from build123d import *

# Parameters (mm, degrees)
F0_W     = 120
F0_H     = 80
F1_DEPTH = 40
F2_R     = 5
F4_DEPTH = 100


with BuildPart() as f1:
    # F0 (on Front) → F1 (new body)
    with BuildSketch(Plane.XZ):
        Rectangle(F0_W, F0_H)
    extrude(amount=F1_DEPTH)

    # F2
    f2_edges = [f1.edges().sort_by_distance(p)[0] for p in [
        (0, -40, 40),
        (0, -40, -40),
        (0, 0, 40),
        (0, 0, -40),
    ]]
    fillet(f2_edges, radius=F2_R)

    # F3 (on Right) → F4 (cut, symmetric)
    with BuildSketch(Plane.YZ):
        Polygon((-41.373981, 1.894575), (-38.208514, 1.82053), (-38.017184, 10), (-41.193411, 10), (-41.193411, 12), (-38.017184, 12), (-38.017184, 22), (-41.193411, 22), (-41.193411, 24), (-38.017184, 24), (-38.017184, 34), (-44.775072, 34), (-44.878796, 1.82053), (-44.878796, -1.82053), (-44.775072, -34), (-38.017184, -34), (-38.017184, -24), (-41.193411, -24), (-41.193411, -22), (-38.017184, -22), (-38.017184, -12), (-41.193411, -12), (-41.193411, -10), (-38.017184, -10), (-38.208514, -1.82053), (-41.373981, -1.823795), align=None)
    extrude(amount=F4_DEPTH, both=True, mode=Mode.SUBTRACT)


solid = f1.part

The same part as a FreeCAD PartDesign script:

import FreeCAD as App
import Part
import Sketcher
from FreeCAD import Vector
Q = App.Units.Quantity


def edges_at(feature, points):
    """Names of the edges that pass closest to the given points."""
    edges = feature.Shape.Edges
    near = lambda p: min(range(len(edges)), key=lambda i: edges[i].distToShape(Part.Vertex(*p))[0])
    return sorted({f"Edge{near(p) + 1}" for p in points})

doc = App.newDocument("Part")
params = doc.addObject("Spreadsheet::Sheet", "Params")
for row, (alias, value) in enumerate([
    ("sketch1_width", "120 mm"),
    ("sketch1_height", "80 mm"),
    ("pad1_length", "40 mm"),
    ("fillet_radius", "5 mm"),
    ("sketch2_height", "2 mm"),
    ("sketch2_height2", "10 mm"),
    ("pocket1_length", "200 mm"),
], start=1):
    params.set(f"A{row}", alias)
    params.set(f"B{row}", "=" + value)
    params.setAlias(f"B{row}", alias)

body = doc.addObject("PartDesign::Body", "Body")

# Sketch on XZ plane
sketch1 = body.newObject("Sketcher::SketchObject", "Sketch")
sketch1.AttachmentSupport = (doc.getObject("XZ_Plane"), [""])
sketch1.MapMode = "FlatFace"
sketch1.addGeometry(Part.LineSegment(Vector(-60, 40, 0), Vector(-60, -40, 0)), False)
sketch1.addGeometry(Part.LineSegment(Vector(-60, -40, 0), Vector(60, -40, 0)), False)
sketch1.addGeometry(Part.LineSegment(Vector(60, -40, 0), Vector(60, 40, 0)), False)
sketch1.addGeometry(Part.LineSegment(Vector(60, 40, 0), Vector(-60, 40, 0)), False)
sketch1.addConstraint(Sketcher.Constraint("Coincident", 0, 2, 1, 1))
sketch1.addConstraint(Sketcher.Constraint("Coincident", 1, 2, 2, 1))
sketch1.addConstraint(Sketcher.Constraint("Coincident", 2, 2, 3, 1))
sketch1.addConstraint(Sketcher.Constraint("Coincident", 3, 2, 0, 1))
sketch1.addConstraint(Sketcher.Constraint("Vertical", 0))
sketch1.addConstraint(Sketcher.Constraint("Horizontal", 1))
sketch1.addConstraint(Sketcher.Constraint("Vertical", 2))
sketch1.addConstraint(Sketcher.Constraint("Horizontal", 3))
sketch1.addConstraint(Sketcher.Constraint("Symmetric", 0, 2, 2, 2, -1, 1))
sketch1.addConstraint(Sketcher.Constraint("DistanceX", 1, 1, 1, 2, Q("120 mm")))
sketch1.addConstraint(Sketcher.Constraint("DistanceY", 0, 2, 0, 1, Q("80 mm")))
sketch1.setExpression("Constraints[9]", "Params.sketch1_width")
sketch1.setExpression("Constraints[10]", "Params.sketch1_height")
pad1 = body.newObject("PartDesign::Pad", "Pad")
pad1.Profile = sketch1
pad1.setExpression("Length", "Params.pad1_length")
doc.recompute()

fillet = body.newObject("PartDesign::Fillet", "Fillet")
fillet.Base = (pad1, edges_at(pad1, [
    (0, -40, 40),
    (0, -40, -40),
    (0, 0, 40),
    (0, 0, -40),
]))
fillet.setExpression("Radius", "Params.fillet_radius")

# Sketch on YZ plane
sketch2 = body.newObject("Sketcher::SketchObject", "Sketch001")
sketch2.AttachmentSupport = (doc.getObject("YZ_Plane"), [""])
sketch2.MapMode = "FlatFace"
sketch2.addGeometry(Part.LineSegment(Vector(-41.4, 1.9, 0), Vector(-38.2, 1.8, 0)), False)
sketch2.addGeometry(Part.LineSegment(Vector(-38.2, 1.8, 0), Vector(-38, 10, 0)), False)
sketch2.addGeometry(Part.LineSegment(Vector(-38, 10, 0), Vector(-41.2, 10, 0)), False)
sketch2.addGeometry(Part.LineSegment(Vector(-41.2, 10, 0), Vector(-41.2, 12, 0)), False)
sketch2.addGeometry(Part.LineSegment(Vector(-41.2, 12, 0), Vector(-38, 12, 0)), False)
sketch2.addGeometry(Part.LineSegment(Vector(-38, 12, 0), Vector(-38, 22, 0)), False)
sketch2.addGeometry(Part.LineSegment(Vector(-38, 22, 0), Vector(-41.2, 22, 0)), False)
sketch2.addGeometry(Part.LineSegment(Vector(-41.2, 22, 0), Vector(-41.2, 24, 0)), False)
sketch2.addGeometry(Part.LineSegment(Vector(-41.2, 24, 0), Vector(-38, 24, 0)), False)
sketch2.addGeometry(Part.LineSegment(Vector(-38, 24, 0), Vector(-38, 34, 0)), False)
sketch2.addGeometry(Part.LineSegment(Vector(-38, 34, 0), Vector(-44.8, 34, 0)), False)
sketch2.addGeometry(Part.LineSegment(Vector(-44.8, 34, 0), Vector(-44.9, 1.8, 0)), False)
sketch2.addGeometry(Part.LineSegment(Vector(-44.9, 1.8, 0), Vector(-44.9, -1.8, 0)), False)
sketch2.addGeometry(Part.LineSegment(Vector(-44.9, -1.8, 0), Vector(-44.8, -34, 0)), False)
sketch2.addGeometry(Part.LineSegment(Vector(-44.8, -34, 0), Vector(-38, -34, 0)), False)
sketch2.addGeometry(Part.LineSegment(Vector(-38, -34, 0), Vector(-38, -24, 0)), False)
sketch2.addGeometry(Part.LineSegment(Vector(-38, -24, 0), Vector(-41.2, -24, 0)), False)
sketch2.addGeometry(Part.LineSegment(Vector(-41.2, -24, 0), Vector(-41.2, -22, 0)), False)
sketch2.addGeometry(Part.LineSegment(Vector(-41.2, -22, 0), Vector(-38, -22, 0)), False)
sketch2.addGeometry(Part.LineSegment(Vector(-38, -22, 0), Vector(-38, -12, 0)), False)
sketch2.addGeometry(Part.LineSegment(Vector(-38, -12, 0), Vector(-41.2, -12, 0)), False)
sketch2.addGeometry(Part.LineSegment(Vector(-41.2, -12, 0), Vector(-41.2, -10, 0)), False)
sketch2.addGeometry(Part.LineSegment(Vector(-41.2, -10, 0), Vector(-38, -10, 0)), False)
sketch2.addGeometry(Part.LineSegment(Vector(-38, -10, 0), Vector(-38.2, -1.8, 0)), False)
sketch2.addGeometry(Part.LineSegment(Vector(-38.2, -1.8, 0), Vector(-41.4, -1.8, 0)), False)
sketch2.addGeometry(Part.LineSegment(Vector(-41.4, -1.8, 0), Vector(-41.4, 1.9, 0)), False)
sketch2.addConstraint(Sketcher.Constraint("Coincident", 0, 2, 1, 1))
sketch2.addConstraint(Sketcher.Constraint("Coincident", 1, 2, 2, 1))
sketch2.addConstraint(Sketcher.Constraint("Coincident", 2, 2, 3, 1))
sketch2.addConstraint(Sketcher.Constraint("Coincident", 3, 2, 4, 1))
sketch2.addConstraint(Sketcher.Constraint("Coincident", 4, 2, 5, 1))
sketch2.addConstraint(Sketcher.Constraint("Coincident", 5, 2, 6, 1))
sketch2.addConstraint(Sketcher.Constraint("Coincident", 6, 2, 7, 1))
sketch2.addConstraint(Sketcher.Constraint("Coincident", 7, 2, 8, 1))
sketch2.addConstraint(Sketcher.Constraint("Coincident", 8, 2, 9, 1))
sketch2.addConstraint(Sketcher.Constraint("Coincident", 9, 2, 10, 1))
sketch2.addConstraint(Sketcher.Constraint("Coincident", 10, 2, 11, 1))
sketch2.addConstraint(Sketcher.Constraint("Coincident", 11, 2, 12, 1))
sketch2.addConstraint(Sketcher.Constraint("Coincident", 12, 2, 13, 1))
sketch2.addConstraint(Sketcher.Constraint("Coincident", 13, 2, 14, 1))
sketch2.addConstraint(Sketcher.Constraint("Coincident", 14, 2, 15, 1))
sketch2.addConstraint(Sketcher.Constraint("Coincident", 15, 2, 16, 1))
sketch2.addConstraint(Sketcher.Constraint("Coincident", 16, 2, 17, 1))
sketch2.addConstraint(Sketcher.Constraint("Coincident", 17, 2, 18, 1))
sketch2.addConstraint(Sketcher.Constraint("Coincident", 18, 2, 19, 1))
sketch2.addConstraint(Sketcher.Constraint("Coincident", 19, 2, 20, 1))
sketch2.addConstraint(Sketcher.Constraint("Coincident", 20, 2, 21, 1))
sketch2.addConstraint(Sketcher.Constraint("Coincident", 21, 2, 22, 1))
sketch2.addConstraint(Sketcher.Constraint("Coincident", 22, 2, 23, 1))
sketch2.addConstraint(Sketcher.Constraint("Coincident", 23, 2, 24, 1))
sketch2.addConstraint(Sketcher.Constraint("Coincident", 24, 2, 25, 1))
sketch2.addConstraint(Sketcher.Constraint("Coincident", 25, 2, 0, 1))
sketch2.addConstraint(Sketcher.Constraint("Horizontal", 2))
sketch2.addConstraint(Sketcher.Constraint("Vertical", 3))
sketch2.addConstraint(Sketcher.Constraint("Horizontal", 4))
sketch2.addConstraint(Sketcher.Constraint("Vertical", 5))
sketch2.addConstraint(Sketcher.Constraint("Horizontal", 6))
sketch2.addConstraint(Sketcher.Constraint("Vertical", 7))
sketch2.addConstraint(Sketcher.Constraint("Horizontal", 8))
sketch2.addConstraint(Sketcher.Constraint("Vertical", 9))
sketch2.addConstraint(Sketcher.Constraint("Horizontal", 10))
sketch2.addConstraint(Sketcher.Constraint("Vertical", 12))
sketch2.addConstraint(Sketcher.Constraint("Horizontal", 14))
sketch2.addConstraint(Sketcher.Constraint("Vertical", 15))
sketch2.addConstraint(Sketcher.Constraint("Horizontal", 16))
sketch2.addConstraint(Sketcher.Constraint("Vertical", 17))
sketch2.addConstraint(Sketcher.Constraint("Horizontal", 18))
sketch2.addConstraint(Sketcher.Constraint("Vertical", 19))
sketch2.addConstraint(Sketcher.Constraint("Horizontal", 20))
sketch2.addConstraint(Sketcher.Constraint("Vertical", 21))
sketch2.addConstraint(Sketcher.Constraint("Horizontal", 22))
sketch2.addConstraint(Sketcher.Constraint("Vertical", 25))
sketch2.addConstraint(Sketcher.Constraint("Symmetric", 10, 2, 13, 2, -1))
sketch2.addConstraint(Sketcher.Constraint("Symmetric", 8, 2, 15, 2, -1))
sketch2.addConstraint(Sketcher.Constraint("Symmetric", 6, 2, 17, 2, -1))
sketch2.addConstraint(Sketcher.Constraint("Symmetric", 4, 2, 19, 2, -1))
sketch2.addConstraint(Sketcher.Constraint("Symmetric", 2, 2, 21, 2, -1))
sketch2.addConstraint(Sketcher.Constraint("Symmetric", 0, 2, 23, 2, -1))
sketch2.addConstraint(Sketcher.Constraint("Perpendicular", 0, 1))
sketch2.addConstraint(Sketcher.Constraint("Horizontal", 0, 2, 11, 2))
sketch2.addConstraint(Sketcher.Constraint("Horizontal", 12, 2, 23, 2))
sketch2.addConstraint(Sketcher.Constraint("Vertical", 1, 2, 4, 2))
sketch2.addConstraint(Sketcher.Constraint("Vertical", 3, 2, 6, 2))
sketch2.addConstraint(Sketcher.Constraint("Vertical", 5, 2, 8, 2))
sketch2.addConstraint(Sketcher.Constraint("Vertical", 19, 2, 22, 2))
sketch2.addConstraint(Sketcher.Constraint("Equal", 3, 7))
sketch2.addConstraint(Sketcher.Constraint("Equal", 5, 9))
sketch2.addConstraint(Sketcher.Constraint("DistanceY", 3, 1, 3, 2, Q("2 mm")))
sketch2.addConstraint(Sketcher.Constraint("DistanceY", 5, 1, 5, 2, Q("10 mm")))
sketch2.addConstraint(Sketcher.Constraint("DistanceY", -1, 1, 1, 2, Q("10 mm")))
sketch2.addConstraint(Sketcher.Constraint("Angle", 0, Q("-1.339989 deg")))
sketch2.addConstraint(Sketcher.Constraint("DistanceX", 10, 2, 10, 1, Q("6.757888 mm")))
sketch2.addConstraint(Sketcher.Constraint("DistanceY", 12, 2, 12, 1, Q("3.64106 mm")))
sketch2.addConstraint(Sketcher.Constraint("DistanceY", 25, 1, 25, 2, Q("3.71837 mm")))
sketch2.addConstraint(Sketcher.Constraint("Distance", 24, Q("3.165469 mm")))
sketch2.addConstraint(Sketcher.Constraint("DistanceX", 2, 2, 2, 1, Q("3.176227 mm")))
sketch2.addConstraint(Sketcher.Constraint("DistanceX", 2, 2, -1, 1, Q("41.193411 mm")))
sketch2.addConstraint(Sketcher.Constraint("DistanceX", 11, 2, -1, 1, Q("44.878796 mm")))
sketch2.setExpression("Constraints[61]", "Params.sketch2_height")
sketch2.setExpression("Constraints[62]", "Params.sketch2_height2")
pocket1 = body.newObject("PartDesign::Pocket", "Pocket")
pocket1.Profile = sketch2
pocket1.setExpression("Length", "Params.pocket1_length")
pocket1.Midplane = True

doc.recompute()
